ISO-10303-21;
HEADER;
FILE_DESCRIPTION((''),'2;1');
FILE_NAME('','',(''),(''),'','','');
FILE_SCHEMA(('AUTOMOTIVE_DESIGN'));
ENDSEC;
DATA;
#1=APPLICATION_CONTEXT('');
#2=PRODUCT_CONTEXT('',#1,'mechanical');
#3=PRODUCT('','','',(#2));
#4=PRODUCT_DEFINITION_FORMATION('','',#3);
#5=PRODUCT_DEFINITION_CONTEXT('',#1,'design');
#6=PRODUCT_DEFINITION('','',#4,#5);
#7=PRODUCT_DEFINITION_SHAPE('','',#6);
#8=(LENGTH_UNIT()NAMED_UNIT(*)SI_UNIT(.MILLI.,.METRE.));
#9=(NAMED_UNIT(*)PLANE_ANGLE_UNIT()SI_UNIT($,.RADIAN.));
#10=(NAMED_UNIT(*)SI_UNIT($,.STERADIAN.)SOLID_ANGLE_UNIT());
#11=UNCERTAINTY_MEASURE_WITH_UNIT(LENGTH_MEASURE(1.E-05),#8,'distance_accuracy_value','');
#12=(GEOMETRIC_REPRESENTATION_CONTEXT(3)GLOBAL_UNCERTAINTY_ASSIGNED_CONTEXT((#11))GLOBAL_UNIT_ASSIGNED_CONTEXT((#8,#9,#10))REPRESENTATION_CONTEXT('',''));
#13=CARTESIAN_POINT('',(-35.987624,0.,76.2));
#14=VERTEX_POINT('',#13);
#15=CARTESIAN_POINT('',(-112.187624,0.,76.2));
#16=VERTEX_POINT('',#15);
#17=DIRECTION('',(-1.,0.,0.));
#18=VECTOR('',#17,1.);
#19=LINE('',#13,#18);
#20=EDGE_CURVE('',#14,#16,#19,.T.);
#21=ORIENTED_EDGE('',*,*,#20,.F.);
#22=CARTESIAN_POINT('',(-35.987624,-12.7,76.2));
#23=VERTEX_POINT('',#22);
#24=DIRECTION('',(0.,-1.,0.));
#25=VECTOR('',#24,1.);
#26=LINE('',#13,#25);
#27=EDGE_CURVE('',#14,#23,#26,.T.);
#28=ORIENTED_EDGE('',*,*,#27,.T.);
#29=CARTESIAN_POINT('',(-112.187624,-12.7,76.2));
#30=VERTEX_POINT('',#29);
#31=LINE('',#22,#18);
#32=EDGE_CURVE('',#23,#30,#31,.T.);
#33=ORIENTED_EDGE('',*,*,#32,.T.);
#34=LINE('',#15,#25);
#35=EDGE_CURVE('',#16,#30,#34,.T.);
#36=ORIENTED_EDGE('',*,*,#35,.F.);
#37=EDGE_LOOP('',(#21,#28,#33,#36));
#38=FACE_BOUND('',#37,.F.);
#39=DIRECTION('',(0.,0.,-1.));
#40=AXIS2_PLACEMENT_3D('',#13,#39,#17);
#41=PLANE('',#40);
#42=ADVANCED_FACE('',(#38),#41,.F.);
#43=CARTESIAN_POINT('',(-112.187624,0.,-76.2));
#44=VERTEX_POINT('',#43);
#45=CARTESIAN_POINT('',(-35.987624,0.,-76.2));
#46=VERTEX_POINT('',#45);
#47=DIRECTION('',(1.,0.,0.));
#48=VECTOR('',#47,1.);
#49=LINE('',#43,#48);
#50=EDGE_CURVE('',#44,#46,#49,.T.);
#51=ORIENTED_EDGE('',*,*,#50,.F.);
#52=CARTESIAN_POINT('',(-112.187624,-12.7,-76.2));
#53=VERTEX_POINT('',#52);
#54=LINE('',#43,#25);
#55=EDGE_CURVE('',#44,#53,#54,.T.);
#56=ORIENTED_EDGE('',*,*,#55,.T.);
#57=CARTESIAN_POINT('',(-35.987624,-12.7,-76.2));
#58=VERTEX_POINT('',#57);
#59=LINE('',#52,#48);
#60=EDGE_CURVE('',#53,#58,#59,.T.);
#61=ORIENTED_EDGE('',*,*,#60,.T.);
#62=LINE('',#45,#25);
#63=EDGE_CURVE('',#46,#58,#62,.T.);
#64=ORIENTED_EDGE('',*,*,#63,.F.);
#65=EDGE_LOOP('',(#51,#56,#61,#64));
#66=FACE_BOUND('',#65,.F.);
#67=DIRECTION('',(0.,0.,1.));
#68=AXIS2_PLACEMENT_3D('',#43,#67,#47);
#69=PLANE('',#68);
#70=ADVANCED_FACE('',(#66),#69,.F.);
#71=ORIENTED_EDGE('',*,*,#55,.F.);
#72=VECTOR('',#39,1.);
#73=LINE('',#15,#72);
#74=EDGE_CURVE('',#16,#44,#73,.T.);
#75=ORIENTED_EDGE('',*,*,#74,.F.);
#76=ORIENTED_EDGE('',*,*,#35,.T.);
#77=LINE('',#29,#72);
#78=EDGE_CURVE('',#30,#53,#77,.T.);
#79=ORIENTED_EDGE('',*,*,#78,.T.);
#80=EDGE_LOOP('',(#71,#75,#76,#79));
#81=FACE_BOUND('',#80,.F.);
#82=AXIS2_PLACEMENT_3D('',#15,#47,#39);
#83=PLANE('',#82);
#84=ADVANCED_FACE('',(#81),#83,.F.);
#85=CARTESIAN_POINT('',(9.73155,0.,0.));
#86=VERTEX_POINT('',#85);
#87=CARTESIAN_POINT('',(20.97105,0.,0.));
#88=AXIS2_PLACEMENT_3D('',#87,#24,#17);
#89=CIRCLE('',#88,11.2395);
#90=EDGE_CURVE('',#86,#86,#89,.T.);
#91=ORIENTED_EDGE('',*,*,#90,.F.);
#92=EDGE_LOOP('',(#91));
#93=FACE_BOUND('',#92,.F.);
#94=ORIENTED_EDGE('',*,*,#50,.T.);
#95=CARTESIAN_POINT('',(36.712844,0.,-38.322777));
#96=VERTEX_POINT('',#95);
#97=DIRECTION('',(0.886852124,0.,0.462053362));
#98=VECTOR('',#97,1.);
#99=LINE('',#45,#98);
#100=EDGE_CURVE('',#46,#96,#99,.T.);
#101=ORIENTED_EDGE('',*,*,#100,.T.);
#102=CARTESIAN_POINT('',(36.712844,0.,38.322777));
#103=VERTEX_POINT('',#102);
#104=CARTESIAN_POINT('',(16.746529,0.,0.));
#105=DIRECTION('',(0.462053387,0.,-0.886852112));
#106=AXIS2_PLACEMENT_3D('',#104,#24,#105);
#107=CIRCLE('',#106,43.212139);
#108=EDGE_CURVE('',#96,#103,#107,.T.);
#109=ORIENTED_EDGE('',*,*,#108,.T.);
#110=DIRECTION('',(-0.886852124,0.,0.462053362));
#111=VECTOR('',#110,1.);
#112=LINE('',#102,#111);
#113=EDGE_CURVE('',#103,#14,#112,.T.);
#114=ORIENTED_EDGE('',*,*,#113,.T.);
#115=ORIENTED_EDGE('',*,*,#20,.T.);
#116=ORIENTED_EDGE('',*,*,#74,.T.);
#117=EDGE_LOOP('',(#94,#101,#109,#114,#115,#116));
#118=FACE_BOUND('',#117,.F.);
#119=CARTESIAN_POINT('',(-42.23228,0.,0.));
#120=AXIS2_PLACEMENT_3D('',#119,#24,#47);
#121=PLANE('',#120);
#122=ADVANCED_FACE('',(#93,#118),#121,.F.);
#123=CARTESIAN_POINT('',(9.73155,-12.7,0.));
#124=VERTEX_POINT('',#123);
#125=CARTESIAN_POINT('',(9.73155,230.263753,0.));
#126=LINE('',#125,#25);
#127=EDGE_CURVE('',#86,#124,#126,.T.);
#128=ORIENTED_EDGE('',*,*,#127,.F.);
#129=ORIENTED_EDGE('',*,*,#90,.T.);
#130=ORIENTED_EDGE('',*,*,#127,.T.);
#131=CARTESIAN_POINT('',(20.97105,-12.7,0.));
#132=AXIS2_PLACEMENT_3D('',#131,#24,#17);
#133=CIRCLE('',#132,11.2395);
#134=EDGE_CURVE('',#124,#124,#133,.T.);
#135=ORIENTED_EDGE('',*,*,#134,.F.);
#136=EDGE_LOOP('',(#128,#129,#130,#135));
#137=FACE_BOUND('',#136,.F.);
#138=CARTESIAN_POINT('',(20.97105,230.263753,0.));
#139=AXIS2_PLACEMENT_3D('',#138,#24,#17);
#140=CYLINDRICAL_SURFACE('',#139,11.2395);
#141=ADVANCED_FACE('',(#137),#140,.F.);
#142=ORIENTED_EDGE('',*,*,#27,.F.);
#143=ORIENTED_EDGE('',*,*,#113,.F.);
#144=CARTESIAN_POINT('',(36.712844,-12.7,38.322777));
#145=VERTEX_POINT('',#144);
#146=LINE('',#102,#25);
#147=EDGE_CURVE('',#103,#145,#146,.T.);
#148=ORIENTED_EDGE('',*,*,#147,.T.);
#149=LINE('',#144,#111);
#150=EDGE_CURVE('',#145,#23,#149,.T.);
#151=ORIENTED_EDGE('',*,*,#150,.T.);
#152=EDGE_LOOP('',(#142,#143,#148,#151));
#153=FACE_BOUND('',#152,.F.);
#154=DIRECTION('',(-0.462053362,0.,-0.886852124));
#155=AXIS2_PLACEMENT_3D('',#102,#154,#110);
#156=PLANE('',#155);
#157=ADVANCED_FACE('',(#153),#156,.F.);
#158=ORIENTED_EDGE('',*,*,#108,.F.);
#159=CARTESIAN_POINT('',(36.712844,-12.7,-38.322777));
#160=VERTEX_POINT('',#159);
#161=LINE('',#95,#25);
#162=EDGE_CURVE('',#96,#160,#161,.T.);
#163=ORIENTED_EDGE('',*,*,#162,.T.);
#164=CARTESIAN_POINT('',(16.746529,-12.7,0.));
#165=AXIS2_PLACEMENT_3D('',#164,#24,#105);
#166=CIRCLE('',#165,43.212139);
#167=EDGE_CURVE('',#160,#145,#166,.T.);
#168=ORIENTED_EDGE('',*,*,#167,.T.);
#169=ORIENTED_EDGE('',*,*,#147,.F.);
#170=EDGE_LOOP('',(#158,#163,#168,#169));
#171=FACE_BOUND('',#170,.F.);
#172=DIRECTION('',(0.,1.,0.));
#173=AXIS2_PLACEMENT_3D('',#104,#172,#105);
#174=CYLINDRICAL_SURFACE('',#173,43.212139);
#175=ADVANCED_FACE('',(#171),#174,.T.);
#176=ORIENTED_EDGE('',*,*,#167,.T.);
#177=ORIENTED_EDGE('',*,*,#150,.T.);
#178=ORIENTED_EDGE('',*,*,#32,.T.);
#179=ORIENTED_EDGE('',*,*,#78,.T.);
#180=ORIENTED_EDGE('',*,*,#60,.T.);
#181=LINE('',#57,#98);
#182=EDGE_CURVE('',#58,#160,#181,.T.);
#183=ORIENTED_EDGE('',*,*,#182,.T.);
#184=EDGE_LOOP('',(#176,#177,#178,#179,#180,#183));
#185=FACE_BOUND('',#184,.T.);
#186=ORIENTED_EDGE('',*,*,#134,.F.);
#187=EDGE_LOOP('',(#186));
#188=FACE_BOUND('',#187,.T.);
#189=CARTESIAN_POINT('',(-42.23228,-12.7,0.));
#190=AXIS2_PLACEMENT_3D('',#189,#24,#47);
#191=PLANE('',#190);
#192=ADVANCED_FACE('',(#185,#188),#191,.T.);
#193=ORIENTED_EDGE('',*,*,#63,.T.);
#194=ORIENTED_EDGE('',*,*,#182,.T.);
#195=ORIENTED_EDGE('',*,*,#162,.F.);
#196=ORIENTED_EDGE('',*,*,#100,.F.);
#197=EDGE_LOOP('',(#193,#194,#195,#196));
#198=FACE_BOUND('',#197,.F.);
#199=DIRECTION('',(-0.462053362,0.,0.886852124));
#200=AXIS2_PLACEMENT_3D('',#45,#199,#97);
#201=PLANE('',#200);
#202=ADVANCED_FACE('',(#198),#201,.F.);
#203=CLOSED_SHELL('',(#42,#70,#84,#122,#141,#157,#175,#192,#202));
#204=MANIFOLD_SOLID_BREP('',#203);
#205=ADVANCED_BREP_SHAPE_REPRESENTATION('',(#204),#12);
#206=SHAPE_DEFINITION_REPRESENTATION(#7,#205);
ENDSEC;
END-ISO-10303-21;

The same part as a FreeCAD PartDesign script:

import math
import FreeCAD as App
import Part
import Sketcher
from FreeCAD import Vector
Q = App.Units.Quantity

doc = App.newDocument("Part")
body = doc.addObject("PartDesign::Body", "Body")

sketch1 = body.newObject("Sketcher::SketchObject", "Sketch")
sketch1.AttachmentSupport = (doc.getObject("XZ_Plane"), [""])
sketch1.MapMode = "FlatFace"
sketch1.addGeometry([
    Part.LineSegment(Vector(-36, 76, 0), Vector(-112, 76, 0)),
    Part.LineSegment(Vector(-112, 76, 0), Vector(-112, -76, 0)),
    Part.LineSegment(Vector(-112, -76, 0), Vector(-36, -76, 0)),
    Part.LineSegment(Vector(-36, -76, 0), Vector(37, -38, 0)),
    Part.ArcOfCircle(Part.Circle(Vector(17, 0, 0), Vector(0, 0, 1), 43), math.radians(-62), math.radians(62)),
    Part.LineSegment(Vector(37, 38, 0), Vector(-36, 76, 0)),
], False)
sketch1.addConstraint([
    Sketcher.Constraint("Coincident", 0, 2, 1, 1),
    Sketcher.Constraint("Coincident", 1, 2, 2, 1),
    Sketcher.Constraint("Coincident", 2, 2, 3, 1),
    Sketcher.Constraint("Tangent", 3, 2, 4, 1),
    Sketcher.Constraint("Tangent", 4, 2, 5, 1),
    Sketcher.Constraint("Coincident", 5, 2, 0, 1),
    Sketcher.Constraint("Horizontal", 0),
    Sketcher.Constraint("Vertical", 1),
    Sketcher.Constraint("Horizontal", 2),
    Sketcher.Constraint("Symmetric", 3, 2, 4, 2, -1),
    Sketcher.Constraint("Vertical", 2, 2, 5, 2),
    Sketcher.Constraint("DistanceX", 0, 2, 0, 1, Q("3 in")),
    Sketcher.Constraint("DistanceY", 1, 2, 1, 1, Q("6 in")),
    Sketcher.Constraint("Radius", 4, 43.212139),
    Sketcher.Constraint("DistanceX", -1, 1, 4, 3, 16.746529),
    Sketcher.Constraint("DistanceX", 2, 2, 3, 2, 72.700468),
])
pad1 = body.newObject("PartDesign::Pad", "Pad")
pad1.Profile = sketch1
pad1.Length = Q("0.5 in")

sketch2 = body.newObject("Sketcher::SketchObject", "Sketch001")
sketch2.AttachmentSupport = (doc.getObject("XZ_Plane"), [""])
sketch2.MapMode = "FlatFace"
sketch2.addGeometry(Part.Circle(Vector(21, 0, 0), Vector(0, 0, 1), 11), False)
sketch2.addConstraint([
    Sketcher.Constraint("PointOnObject", 0, 3, -1),
    Sketcher.Constraint("Diameter", 0, Q("0.885 in")),
    Sketcher.Constraint("DistanceX", -1, 1, 0, 3, 20.97105),
])
doc.recompute()
hole = body.newObject("PartDesign::Hole", "Hole")
hole.Profile = sketch2
hole.ThreadType = "None"
hole.Diameter = Q("0.885 in")
hole.DepthType = "ThroughAll"
hole.Reversed = True

doc.recompute()
